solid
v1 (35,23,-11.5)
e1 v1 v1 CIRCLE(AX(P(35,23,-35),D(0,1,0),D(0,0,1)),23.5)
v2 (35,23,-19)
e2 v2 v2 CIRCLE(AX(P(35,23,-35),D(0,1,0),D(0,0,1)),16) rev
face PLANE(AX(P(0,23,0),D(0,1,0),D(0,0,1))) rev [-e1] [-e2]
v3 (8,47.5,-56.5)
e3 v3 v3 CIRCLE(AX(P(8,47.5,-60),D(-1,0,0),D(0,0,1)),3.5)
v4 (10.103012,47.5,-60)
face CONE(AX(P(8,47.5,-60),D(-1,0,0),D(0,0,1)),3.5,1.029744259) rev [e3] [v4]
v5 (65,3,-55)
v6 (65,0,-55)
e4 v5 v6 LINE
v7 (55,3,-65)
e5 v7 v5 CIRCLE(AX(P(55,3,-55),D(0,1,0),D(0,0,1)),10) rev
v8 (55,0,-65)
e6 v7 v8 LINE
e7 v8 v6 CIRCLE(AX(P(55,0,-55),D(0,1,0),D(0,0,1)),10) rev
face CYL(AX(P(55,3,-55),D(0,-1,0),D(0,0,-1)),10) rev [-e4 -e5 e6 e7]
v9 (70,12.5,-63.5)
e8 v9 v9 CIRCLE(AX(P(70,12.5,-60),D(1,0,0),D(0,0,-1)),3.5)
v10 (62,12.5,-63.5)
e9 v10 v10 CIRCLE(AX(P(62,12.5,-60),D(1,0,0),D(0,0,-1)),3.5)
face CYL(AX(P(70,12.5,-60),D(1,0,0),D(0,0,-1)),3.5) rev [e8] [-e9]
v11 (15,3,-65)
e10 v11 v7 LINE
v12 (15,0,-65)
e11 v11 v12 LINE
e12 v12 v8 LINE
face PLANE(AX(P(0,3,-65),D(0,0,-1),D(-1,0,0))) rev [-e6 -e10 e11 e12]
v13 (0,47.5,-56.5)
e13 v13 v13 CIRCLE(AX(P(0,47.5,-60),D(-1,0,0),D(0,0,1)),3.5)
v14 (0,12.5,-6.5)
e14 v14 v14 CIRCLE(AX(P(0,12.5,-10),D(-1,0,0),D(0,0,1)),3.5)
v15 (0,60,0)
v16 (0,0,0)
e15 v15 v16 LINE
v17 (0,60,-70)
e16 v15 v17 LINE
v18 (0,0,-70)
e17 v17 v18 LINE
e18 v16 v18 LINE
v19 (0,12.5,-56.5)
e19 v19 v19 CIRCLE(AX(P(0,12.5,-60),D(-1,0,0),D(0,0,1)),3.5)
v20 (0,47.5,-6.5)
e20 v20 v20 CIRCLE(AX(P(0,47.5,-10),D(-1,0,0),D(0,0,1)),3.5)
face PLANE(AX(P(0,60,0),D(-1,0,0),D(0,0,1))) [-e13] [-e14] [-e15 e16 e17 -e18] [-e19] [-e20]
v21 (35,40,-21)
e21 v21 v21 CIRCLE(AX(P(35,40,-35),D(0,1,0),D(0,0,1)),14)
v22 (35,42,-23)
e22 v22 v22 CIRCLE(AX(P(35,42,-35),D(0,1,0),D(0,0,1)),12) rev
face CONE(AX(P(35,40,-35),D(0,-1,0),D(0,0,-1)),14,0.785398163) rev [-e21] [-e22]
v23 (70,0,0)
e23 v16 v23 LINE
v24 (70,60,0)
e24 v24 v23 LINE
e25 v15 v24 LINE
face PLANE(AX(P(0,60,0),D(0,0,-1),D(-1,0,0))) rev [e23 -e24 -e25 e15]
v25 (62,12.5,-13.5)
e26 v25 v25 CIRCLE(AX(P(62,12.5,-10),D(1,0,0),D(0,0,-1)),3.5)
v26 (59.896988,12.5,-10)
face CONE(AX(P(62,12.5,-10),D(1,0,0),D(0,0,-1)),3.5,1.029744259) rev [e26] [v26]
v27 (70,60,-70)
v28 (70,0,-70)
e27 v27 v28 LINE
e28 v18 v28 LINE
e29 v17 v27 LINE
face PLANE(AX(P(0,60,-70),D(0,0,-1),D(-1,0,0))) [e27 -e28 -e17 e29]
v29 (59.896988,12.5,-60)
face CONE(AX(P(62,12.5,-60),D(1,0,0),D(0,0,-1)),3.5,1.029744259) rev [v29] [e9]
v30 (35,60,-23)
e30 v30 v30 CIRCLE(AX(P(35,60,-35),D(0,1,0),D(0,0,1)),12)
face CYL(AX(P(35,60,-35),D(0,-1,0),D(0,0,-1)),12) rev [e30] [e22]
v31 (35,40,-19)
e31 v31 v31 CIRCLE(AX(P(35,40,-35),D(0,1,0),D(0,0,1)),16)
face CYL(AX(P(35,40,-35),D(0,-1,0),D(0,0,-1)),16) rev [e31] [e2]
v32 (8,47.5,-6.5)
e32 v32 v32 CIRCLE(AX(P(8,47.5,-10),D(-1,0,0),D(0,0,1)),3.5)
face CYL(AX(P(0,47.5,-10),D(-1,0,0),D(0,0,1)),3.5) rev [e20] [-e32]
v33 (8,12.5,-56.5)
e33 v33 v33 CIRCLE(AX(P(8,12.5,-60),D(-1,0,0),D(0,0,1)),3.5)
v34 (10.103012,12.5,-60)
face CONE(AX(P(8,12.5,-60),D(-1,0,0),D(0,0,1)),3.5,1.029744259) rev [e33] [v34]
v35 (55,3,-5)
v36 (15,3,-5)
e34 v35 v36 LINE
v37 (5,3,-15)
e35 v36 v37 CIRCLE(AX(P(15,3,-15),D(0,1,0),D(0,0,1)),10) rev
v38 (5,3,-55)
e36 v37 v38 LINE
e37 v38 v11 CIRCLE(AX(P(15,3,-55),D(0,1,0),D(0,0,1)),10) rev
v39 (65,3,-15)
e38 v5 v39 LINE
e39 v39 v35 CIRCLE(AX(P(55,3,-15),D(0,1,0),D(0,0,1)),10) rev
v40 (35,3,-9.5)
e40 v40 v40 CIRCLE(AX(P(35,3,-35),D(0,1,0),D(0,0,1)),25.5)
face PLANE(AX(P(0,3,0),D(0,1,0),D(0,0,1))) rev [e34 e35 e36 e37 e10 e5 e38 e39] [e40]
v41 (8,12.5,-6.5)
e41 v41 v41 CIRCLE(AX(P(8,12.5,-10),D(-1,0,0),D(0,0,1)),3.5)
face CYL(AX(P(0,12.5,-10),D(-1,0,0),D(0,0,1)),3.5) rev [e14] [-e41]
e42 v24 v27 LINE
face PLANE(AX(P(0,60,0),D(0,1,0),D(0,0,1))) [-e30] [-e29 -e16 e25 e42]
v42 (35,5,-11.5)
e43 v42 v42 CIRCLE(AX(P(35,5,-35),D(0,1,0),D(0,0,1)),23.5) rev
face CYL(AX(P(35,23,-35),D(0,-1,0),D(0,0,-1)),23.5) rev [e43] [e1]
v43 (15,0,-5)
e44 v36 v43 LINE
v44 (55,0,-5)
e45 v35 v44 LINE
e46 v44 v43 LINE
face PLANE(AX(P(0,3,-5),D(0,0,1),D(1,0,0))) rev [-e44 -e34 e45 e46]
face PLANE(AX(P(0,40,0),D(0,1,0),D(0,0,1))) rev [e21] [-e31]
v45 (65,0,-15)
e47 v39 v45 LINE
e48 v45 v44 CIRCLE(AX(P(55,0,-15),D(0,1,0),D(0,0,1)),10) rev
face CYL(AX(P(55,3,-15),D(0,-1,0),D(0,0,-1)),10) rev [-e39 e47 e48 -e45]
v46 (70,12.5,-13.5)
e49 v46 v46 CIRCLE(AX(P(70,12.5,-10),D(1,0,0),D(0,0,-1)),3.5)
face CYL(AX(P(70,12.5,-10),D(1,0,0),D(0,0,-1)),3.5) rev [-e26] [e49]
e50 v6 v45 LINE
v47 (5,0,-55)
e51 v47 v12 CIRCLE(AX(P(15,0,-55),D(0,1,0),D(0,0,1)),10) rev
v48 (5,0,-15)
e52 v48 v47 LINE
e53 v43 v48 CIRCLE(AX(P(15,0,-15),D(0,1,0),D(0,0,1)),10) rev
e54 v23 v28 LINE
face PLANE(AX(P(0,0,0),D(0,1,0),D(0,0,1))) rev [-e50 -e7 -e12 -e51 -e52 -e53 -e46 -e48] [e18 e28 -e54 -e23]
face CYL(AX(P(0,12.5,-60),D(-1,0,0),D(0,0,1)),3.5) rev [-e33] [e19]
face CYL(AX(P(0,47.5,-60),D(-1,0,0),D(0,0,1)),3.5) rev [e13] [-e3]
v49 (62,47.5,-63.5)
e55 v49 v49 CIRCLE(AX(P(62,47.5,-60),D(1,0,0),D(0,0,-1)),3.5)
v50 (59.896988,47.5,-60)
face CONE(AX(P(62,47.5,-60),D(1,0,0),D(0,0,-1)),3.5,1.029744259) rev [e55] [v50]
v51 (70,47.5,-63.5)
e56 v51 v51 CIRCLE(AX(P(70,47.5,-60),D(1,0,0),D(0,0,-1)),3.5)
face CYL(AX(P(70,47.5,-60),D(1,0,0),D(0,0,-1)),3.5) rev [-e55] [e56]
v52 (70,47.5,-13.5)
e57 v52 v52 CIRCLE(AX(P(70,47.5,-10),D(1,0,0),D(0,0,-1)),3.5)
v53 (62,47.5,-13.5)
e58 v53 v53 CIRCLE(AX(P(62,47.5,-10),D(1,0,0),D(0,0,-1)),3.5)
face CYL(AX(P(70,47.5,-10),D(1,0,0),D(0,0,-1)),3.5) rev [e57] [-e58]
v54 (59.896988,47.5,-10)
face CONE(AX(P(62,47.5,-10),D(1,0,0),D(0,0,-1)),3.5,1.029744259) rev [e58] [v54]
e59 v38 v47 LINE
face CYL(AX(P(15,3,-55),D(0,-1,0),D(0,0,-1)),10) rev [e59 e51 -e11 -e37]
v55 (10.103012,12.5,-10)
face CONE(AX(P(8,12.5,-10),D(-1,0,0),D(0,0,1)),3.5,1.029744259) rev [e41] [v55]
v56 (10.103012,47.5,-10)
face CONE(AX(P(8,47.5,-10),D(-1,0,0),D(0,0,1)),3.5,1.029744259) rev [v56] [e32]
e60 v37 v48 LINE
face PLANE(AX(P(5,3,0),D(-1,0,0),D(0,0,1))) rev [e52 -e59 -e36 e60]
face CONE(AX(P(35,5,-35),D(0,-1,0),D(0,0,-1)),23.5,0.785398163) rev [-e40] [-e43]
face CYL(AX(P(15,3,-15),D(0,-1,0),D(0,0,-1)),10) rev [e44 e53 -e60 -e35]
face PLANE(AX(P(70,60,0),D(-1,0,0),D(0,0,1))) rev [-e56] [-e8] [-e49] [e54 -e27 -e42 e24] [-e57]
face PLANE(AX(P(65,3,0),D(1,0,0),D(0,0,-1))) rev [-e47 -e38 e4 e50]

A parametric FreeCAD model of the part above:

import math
import FreeCAD as App
import Part
import Sketcher
from FreeCAD import Vector
Q = App.Units.Quantity


def edges_at(feature, points):
    """Names of the edges that pass closest to the given points."""
    edges = feature.Shape.Edges
    near = lambda p: min(range(len(edges)), key=lambda i: edges[i].distToShape(Part.Vertex(*p))[0])
    return sorted({f"Edge{near(p) + 1}" for p in points})

doc = App.newDocument("Part")
body = doc.addObject("PartDesign::Body", "Body")

sketch1 = doc.addObject("Sketcher::SketchObject", "Sketch")
body.addObject(sketch1)
sketch1.AttachmentSupport = (doc.XZ_Plane, [""])
sketch1.MapMode = "FlatFace"
sketch1.addGeometry(Part.LineSegment(Vector(0, -70, 0), Vector(0, 0, 0)), False)
sketch1.addGeometry(Part.LineSegment(Vector(0, 0, 0), Vector(70, 0, 0)), False)
sketch1.addGeometry(Part.LineSegment(Vector(70, 0, 0), Vector(70, -70, 0)), False)
sketch1.addGeometry(Part.LineSegment(Vector(70, -70, 0), Vector(0, -70, 0)), False)
sketch1.addGeometry(Part.Circle(Vector(35, -35, 0), Vector(0, 0, 1), 12), False)
sketch1.addConstraint(Sketcher.Constraint("Coincident", 0, 2, 1, 1))
sketch1.addConstraint(Sketcher.Constraint("Coincident", 1, 2, 2, 1))
sketch1.addConstraint(Sketcher.Constraint("Coincident", 2, 2, 3, 1))
sketch1.addConstraint(Sketcher.Constraint("Coincident", 3, 2, 0, 1))
sketch1.addConstraint(Sketcher.Constraint("Vertical", 0))
sketch1.addConstraint(Sketcher.Constraint("Horizontal", 1))
sketch1.addConstraint(Sketcher.Constraint("Vertical", 2))
sketch1.addConstraint(Sketcher.Constraint("Horizontal", 3))
sketch1.addConstraint(Sketcher.Constraint("Coincident", 0, 2, -1, 1))
sketch1.addConstraint(Sketcher.Constraint("Equal", 3, 0))
sketch1.addConstraint(Sketcher.Constraint("Diameter", 4, 24.0))
sketch1.addConstraint(Sketcher.Constraint("DistanceX", 1, 1, 1, 2, 70.0))
sketch1.addConstraint(Sketcher.Constraint("DistanceX", -1, 1, 4, 3, 35.0))
sketch1.addConstraint(Sketcher.Constraint("DistanceY", 4, 3, -1, 1, 35.0))
pad1 = doc.addObject("PartDesign::Pad", "Pad")
body.addObject(pad1)
pad1.Profile = sketch1
pad1.Length = 60
pad1.Reversed = True

sketch2 = doc.addObject("Sketcher::SketchObject", "Sketch001")
body.addObject(sketch2)
sketch2.AttachmentSupport = (doc.XZ_Plane, [""])
sketch2.MapMode = "FlatFace"
sketch2.addGeometry(Part.ArcOfCircle(Part.Circle(Vector(15, -55, 0), Vector(0, 0, 1), 10), math.radians(180), math.radians(270)), False)
sketch2.addGeometry(Part.LineSegment(Vector(5, -55, 0), Vector(5, -15, 0)), False)
sketch2.addGeometry(Part.ArcOfCircle(Part.Circle(Vector(15, -15, 0), Vector(0, 0, 1), 10), math.radians(90), math.radians(180)), False)
sketch2.addGeometry(Part.LineSegment(Vector(15, -5, 0), Vector(55, -5, 0)), False)
sketch2.addGeometry(Part.ArcOfCircle(Part.Circle(Vector(55, -15, 0), Vector(0, 0, 1), 10), math.radians(0), math.radians(90)), False)
sketch2.addGeometry(Part.LineSegment(Vector(65, -15, 0), Vector(65, -55, 0)), False)
sketch2.addGeometry(Part.ArcOfCircle(Part.Circle(Vector(55, -55, 0), Vector(0, 0, 1), 10), math.radians(-90), math.radians(0)), False)
sketch2.addGeometry(Part.LineSegment(Vector(55, -65, 0), Vector(15, -65, 0)), False)
sketch2.addGeometry(Part.Circle(Vector(35, -35, 0), Vector(0, 0, 1), 24), False)
sketch2.addConstraint(Sketcher.Constraint("Tangent", 0, 1, 1, 1))
sketch2.addConstraint(Sketcher.Constraint("Tangent", 1, 2, 2, 2))
sketch2.addConstraint(Sketcher.Constraint("Tangent", 2, 1, 3, 1))
sketch2.addConstraint(Sketcher.Constraint("Tangent", 3, 2, 4, 2))
sketch2.addConstraint(Sketcher.Constraint("Tangent", 4, 1, 5, 1))
sketch2.addConstraint(Sketcher.Constraint("Tangent", 5, 2, 6, 2))
sketch2.addConstraint(Sketcher.Constraint("Tangent", 6, 1, 7, 1))
sketch2.addConstraint(Sketcher.Constraint("Tangent", 7, 2, 0, 2))
sketch2.addConstraint(Sketcher.Constraint("Vertical", 1))
sketch2.addConstraint(Sketcher.Constraint("Horizontal", 3))
sketch2.addConstraint(Sketcher.Constraint("Vertical", 5))
sketch2.addConstraint(Sketcher.Constraint("Horizontal", 7))
sketch2.addConstraint(Sketcher.Constraint("Equal", 0, 2))
sketch2.addConstraint(Sketcher.Constraint("Equal", 2, 4))
sketch2.addConstraint(Sketcher.Constraint("Equal", 4, 6))
sketch2.addConstraint(Sketcher.Constraint("Equal", 7, 1))
sketch2.addConstraint(Sketcher.Constraint("Diameter", 8, 47.0))
sketch2.addConstraint(Sketcher.Constraint("Radius", 0, 10.0))
sketch2.addConstraint(Sketcher.Constraint("DistanceX", 3, 1, 3, 2, 40.0))
sketch2.addConstraint(Sketcher.Constraint("DistanceX", -1, 1, 0, 3, 15.0))
sketch2.addConstraint(Sketcher.Constraint("DistanceY", 0, 3, -1, 1, 55.0))
sketch2.addConstraint(Sketcher.Constraint("DistanceX", -1, 1, 8, 3, 35.0))
sketch2.addConstraint(Sketcher.Constraint("DistanceY", 8, 3, -1, 1, 35.0))
pocket1 = doc.addObject("PartDesign::Pocket", "Pocket")
body.addObject(pocket1)
pocket1.Profile = sketch2
pocket1.Length = 3

sketch3 = doc.addObject("Sketcher::SketchObject", "Sketch002")
body.addObject(sketch3)
sketch3.AttachmentSupport = (doc.XZ_Plane, [""])
sketch3.MapMode = "FlatFace"
sketch3.addGeometry(Part.Circle(Vector(35, -35, 0), Vector(0, 0, 1), 24), False)
sketch3.addConstraint(Sketcher.Constraint("Diameter", 0, 47.0))
sketch3.addConstraint(Sketcher.Constraint("DistanceX", -1, 1, 0, 3, 35.0))
sketch3.addConstraint(Sketcher.Constraint("DistanceY", 0, 3, -1, 1, 35.0))
pocket2 = doc.addObject("PartDesign::Pocket", "Pocket001")
body.addObject(pocket2)
pocket2.Profile = sketch3
pocket2.Length = 23

sketch4 = doc.addObject("Sketcher::SketchObject", "Sketch003")
body.addObject(sketch4)
sketch4.AttachmentSupport = (doc.XZ_Plane, [""])
sketch4.MapMode = "FlatFace"
sketch4.addGeometry(Part.Circle(Vector(35, -35, 0), Vector(0, 0, 1), 16), False)
sketch4.addGeometry(Part.Circle(Vector(35, -35, 0), Vector(0, 0, 1), 12), False)
sketch4.addConstraint(Sketcher.Constraint("Coincident", 1, 3, 0, 3))
sketch4.addConstraint(Sketcher.Constraint("Diameter", 0, 32.0))
sketch4.addConstraint(Sketcher.Constraint("Diameter", 1, 24.0))
sketch4.addConstraint(Sketcher.Constraint("DistanceX", -1, 1, 0, 3, 35.0))
sketch4.addConstraint(Sketcher.Constraint("DistanceY", 0, 3, -1, 1, 35.0))
pocket3 = doc.addObject("PartDesign::Pocket", "Pocket002")
body.addObject(pocket3)
pocket3.Profile = sketch4
pocket3.Length = 40
doc.recompute()

chamfer = doc.addObject("PartDesign::Chamfer", "Chamfer")
body.addObject(chamfer)
chamfer.Base = (pocket3, edges_at(pocket3, [(35, 40, -47)]))
chamfer.Size = 2
doc.recompute()

chamfer2 = doc.addObject("PartDesign::Chamfer", "Chamfer001")
body.addObject(chamfer2)
chamfer2.Base = (chamfer, edges_at(chamfer, [(35, 3, -58.5)]))
chamfer2.Size = 2

sketch5 = doc.addObject("Sketcher::SketchObject", "Sketch004")
body.addObject(sketch5)
sketch5.AttachmentSupport = (doc.XZ_Plane, [""])
sketch5.MapMode = "FlatFace"
sketch5.AttachmentOffset = App.Placement(Vector(0, 0, -47.5), App.Rotation())
sketch5.addGeometry(Part.LineSegment(Vector(59.9, -10, 0), Vector(70, -10, 0)), False)
sketch5.addGeometry(Part.LineSegment(Vector(70, -10, 0), Vector(70, -13.5, 0)), False)
sketch5.addGeometry(Part.LineSegment(Vector(70, -13.5, 0), Vector(62, -13.5, 0)), False)
sketch5.addGeometry(Part.LineSegment(Vector(62, -13.5, 0), Vector(59.9, -10, 0)), False)
sketch5.addGeometry(Part.LineSegment(Vector(70, -10, 0), Vector(59.9, -10, 0)), True)
sketch5.addConstraint(Sketcher.Constraint("Coincident", 0, 2, 1, 1))
sketch5.addConstraint(Sketcher.Constraint("Coincident", 1, 2, 2, 1))
sketch5.addConstraint(Sketcher.Constraint("Coincident", 2, 2, 3, 1))
sketch5.addConstraint(Sketcher.Constraint("Coincident", 3, 2, 0, 1))
sketch5.addConstraint(Sketcher.Constraint("Horizontal", 0))
sketch5.addConstraint(Sketcher.Constraint("Vertical", 1))
sketch5.addConstraint(Sketcher.Constraint("Horizontal", 2))
sketch5.addConstraint(Sketcher.Constraint("Horizontal", 4))
sketch5.addConstraint(Sketcher.Constraint("Coincident", 4, 1, 0, 2))
sketch5.addConstraint(Sketcher.Constraint("Equal", 0, 4))
sketch5.addConstraint(Sketcher.Constraint("DistanceX", 2, 2, 2, 1, 8.0))
sketch5.addConstraint(Sketcher.Constraint("Angle", 3, Q("121 deg")))
sketch5.addConstraint(Sketcher.Constraint("DistanceY", 1, 2, 1, 1, 3.5))
sketch5.addConstraint(Sketcher.Constraint("DistanceX", -1, 1, 0, 2, 70.0))
sketch5.addConstraint(Sketcher.Constraint("DistanceY", 0, 2, -1, 1, 10.0))
groove = doc.addObject("PartDesign::Groove", "Groove")
body.addObject(groove)
groove.Profile = sketch5
groove.ReferenceAxis = (sketch5, ["Axis0"])
groove.Angle = 360
doc.recompute()

linearpattern = doc.addObject("PartDesign::LinearPattern", "LinearPattern")
body.addObject(linearpattern)
linearpattern.Originals = [groove]
linearpattern.Direction = (doc.Z_Axis, [""])
linearpattern.Mode = "offset"
linearpattern.Offset = 50
linearpattern.Occurrences = 2
linearpattern.Reversed = True
body.Tip = linearpattern
doc.recompute()

linearpattern2 = doc.addObject("PartDesign::LinearPattern", "LinearPattern001")
body.addObject(linearpattern2)
linearpattern2.Originals = [groove]
linearpattern2.Direction = (doc.Y_Axis, [""])
linearpattern2.Mode = "offset"
linearpattern2.Offset = 35
linearpattern2.Occurrences = 2
linearpattern2.Reversed = True
body.Tip = linearpattern2
doc.recompute()

datumline = doc.addObject("PartDesign::Line", "DatumLine")
body.addObject(datumline)
datumline.Placement = App.Placement(Vector(0, 0, 0), App.Rotation(Vector(0, 0, 1), Vector(0, -0.573462344, -0.819231921)))
linearpattern3 = doc.addObject("PartDesign::LinearPattern", "LinearPattern002")
body.addObject(linearpattern3)
linearpattern3.Originals = [groove]
linearpattern3.Direction = (datumline, [""])
linearpattern3.Mode = "offset"
linearpattern3.Offset = 61.032778
linearpattern3.Occurrences = 2
body.Tip = linearpattern3
doc.recompute()

datumplane = doc.addObject("PartDesign::Plane", "DatumPlane")
body.addObject(datumplane)
datumplane.AttachmentSupport = (doc.YZ_Plane, [""])
datumplane.MapMode = "FlatFace"
datumplane.AttachmentOffset = App.Placement(Vector(0, 0, 35), App.Rotation())
mirrored = doc.addObject("PartDesign::Mirrored", "Mirrored")
body.addObject(mirrored)
mirrored.Originals = [groove]
mirrored.MirrorPlane = (datumplane, [""])
body.Tip = mirrored

sketch6 = doc.addObject("Sketcher::SketchObject", "Sketch005")
body.addObject(sketch6)
sketch6.AttachmentSupport = (doc.XZ_Plane, [""])
sketch6.MapMode = "FlatFace"
sketch6.AttachmentOffset = App.Placement(Vector(0, 0, -47.5), App.Rotation())
sketch6.addGeometry(Part.LineSegment(Vector(0, -60, 0), Vector(10.1, -60, 0)), False)
sketch6.addGeometry(Part.LineSegment(Vector(10.1, -60, 0), Vector(8, -63.5, 0)), False)
sketch6.addGeometry(Part.LineSegment(Vector(8, -63.5, 0), Vector(0, -63.5, 0)), False)
sketch6.addGeometry(Part.LineSegment(Vector(0, -63.5, 0), Vector(0, -60, 0)), False)
sketch6.addGeometry(Part.LineSegment(Vector(10.1, -60, 0), Vector(0, -60, 0)), True)
sketch6.addConstraint(Sketcher.Constraint("Coincident", 0, 2, 1, 1))
sketch6.addConstraint(Sketcher.Constraint("Coincident", 1, 2, 2, 1))
sketch6.addConstraint(Sketcher.Constraint("Coincident", 2, 2, 3, 1))
sketch6.addConstraint(Sketcher.Constraint("Coincident", 3, 2, 0, 1))
sketch6.addConstraint(Sketcher.Constraint("Horizontal", 0))
sketch6.addConstraint(Sketcher.Constraint("Horizontal", 2))
sketch6.addConstraint(Sketcher.Constraint("Vertical", 3))
sketch6.addConstraint(Sketcher.Constraint("Horizontal", 4))
sketch6.addConstraint(Sketcher.Constraint("Coincident", 4, 1, 0, 2))
sketch6.addConstraint(Sketcher.Constraint("PointOnObject", 2, 2, -2))
sketch6.addConstraint(Sketcher.Constraint("PointOnObject", 4, 2, -2))
sketch6.addConstraint(Sketcher.Constraint("DistanceX", 2, 2, 2, 1, 8.0))
sketch6.addConstraint(Sketcher.Constraint("Angle", 1, Q("-121 deg")))
sketch6.addConstraint(Sketcher.Constraint("DistanceY", 3, 1, 3, 2, 3.5))
sketch6.addConstraint(Sketcher.Constraint("DistanceY", 0, 2, -1, 1, 60.0))
groove2 = doc.addObject("PartDesign::Groove", "Groove001")
body.addObject(groove2)
groove2.Profile = sketch6
groove2.ReferenceAxis = (sketch6, ["Axis0"])
groove2.Angle = 360

sketch7 = doc.addObject("Sketcher::SketchObject", "Sketch006")
body.addObject(sketch7)
sketch7.AttachmentSupport = (doc.XZ_Plane, [""])
sketch7.MapMode = "FlatFace"
sketch7.AttachmentOffset = App.Placement(Vector(0, 0, -12.5), App.Rotation())
sketch7.addGeometry(Part.LineSegment(Vector(0, -10, 0), Vector(10.1, -10, 0)), False)
sketch7.addGeometry(Part.LineSegment(Vector(10.1, -10, 0), Vector(8, -13.5, 0)), False)
sketch7.addGeometry(Part.LineSegment(Vector(8, -13.5, 0), Vector(0, -13.5, 0)), False)
sketch7.addGeometry(Part.LineSegment(Vector(0, -13.5, 0), Vector(0, -10, 0)), False)
sketch7.addGeometry(Part.LineSegment(Vector(10.1, -10, 0), Vector(0, -10, 0)), True)
sketch7.addConstraint(Sketcher.Constraint("Coincident", 0, 2, 1, 1))
sketch7.addConstraint(Sketcher.Constraint("Coincident", 1, 2, 2, 1))
sketch7.addConstraint(Sketcher.Constraint("Coincident", 2, 2, 3, 1))
sketch7.addConstraint(Sketcher.Constraint("Coincident", 3, 2, 0, 1))
sketch7.addConstraint(Sketcher.Constraint("Horizontal", 0))
sketch7.addConstraint(Sketcher.Constraint("Horizontal", 2))
sketch7.addConstraint(Sketcher.Constraint("Vertical", 3))
sketch7.addConstraint(Sketcher.Constraint("Horizontal", 4))
sketch7.addConstraint(Sketcher.Constraint("Coincident", 4, 1, 0, 2))
sketch7.addConstraint(Sketcher.Constraint("PointOnObject", 2, 2, -2))
sketch7.addConstraint(Sketcher.Constraint("PointOnObject", 4, 2, -2))
sketch7.addConstraint(Sketcher.Constraint("DistanceX", 2, 2, 2, 1, 8.0))
sketch7.addConstraint(Sketcher.Constraint("Angle", 1, Q("-121 deg")))
sketch7.addConstraint(Sketcher.Constraint("DistanceY", 3, 1, 3, 2, 3.5))
sketch7.addConstraint(Sketcher.Constraint("DistanceY", 0, 2, -1, 1, 10.0))
groove3 = doc.addObject("PartDesign::Groove", "Groove002")
body.addObject(groove3)
groove3.Profile = sketch7
groove3.ReferenceAxis = (sketch7, ["Axis0"])
groove3.Angle = 360

sketch8 = doc.addObject("Sketcher::SketchObject", "Sketch007")
body.addObject(sketch8)
sketch8.AttachmentSupport = (doc.XZ_Plane, [""])
sketch8.MapMode = "FlatFace"
sketch8.AttachmentOffset = App.Placement(Vector(0, 0, -12.5), App.Rotation())
sketch8.addGeometry(Part.LineSegment(Vector(0, -60, 0), Vector(10.1, -60, 0)), False)
sketch8.addGeometry(Part.LineSegment(Vector(10.1, -60, 0), Vector(8, -63.5, 0)), False)
sketch8.addGeometry(Part.LineSegment(Vector(8, -63.5, 0), Vector(0, -63.5, 0)), False)
sketch8.addGeometry(Part.LineSegment(Vector(0, -63.5, 0), Vector(0, -60, 0)), False)
sketch8.addGeometry(Part.LineSegment(Vector(10.1, -60, 0), Vector(0, -60, 0)), True)
sketch8.addConstraint(Sketcher.Constraint("Coincident", 0, 2, 1, 1))
sketch8.addConstraint(Sketcher.Constraint("Coincident", 1, 2, 2, 1))
sketch8.addConstraint(Sketcher.Constraint("Coincident", 2, 2, 3, 1))
sketch8.addConstraint(Sketcher.Constraint("Coincident", 3, 2, 0, 1))
sketch8.addConstraint(Sketcher.Constraint("Horizontal", 0))
sketch8.addConstraint(Sketcher.Constraint("Horizontal", 2))
sketch8.addConstraint(Sketcher.Constraint("Vertical", 3))
sketch8.addConstraint(Sketcher.Constraint("Horizontal", 4))
sketch8.addConstraint(Sketcher.Constraint("Coincident", 4, 1, 0, 2))
sketch8.addConstraint(Sketcher.Constraint("PointOnObject", 2, 2, -2))
sketch8.addConstraint(Sketcher.Constraint("PointOnObject", 4, 2, -2))
sketch8.addConstraint(Sketcher.Constraint("DistanceX", 2, 2, 2, 1, 8.0))
sketch8.addConstraint(Sketcher.Constraint("Angle", 1, Q("-121 deg")))
sketch8.addConstraint(Sketcher.Constraint("DistanceY", 3, 1, 3, 2, 3.5))
sketch8.addConstraint(Sketcher.Constraint("DistanceY", 0, 2, -1, 1, 60.0))
groove4 = doc.addObject("PartDesign::Groove", "Groove003")
body.addObject(groove4)
groove4.Profile = sketch8
groove4.ReferenceAxis = (sketch8, ["Axis0"])
groove4.Angle = 360

doc.recompute()
